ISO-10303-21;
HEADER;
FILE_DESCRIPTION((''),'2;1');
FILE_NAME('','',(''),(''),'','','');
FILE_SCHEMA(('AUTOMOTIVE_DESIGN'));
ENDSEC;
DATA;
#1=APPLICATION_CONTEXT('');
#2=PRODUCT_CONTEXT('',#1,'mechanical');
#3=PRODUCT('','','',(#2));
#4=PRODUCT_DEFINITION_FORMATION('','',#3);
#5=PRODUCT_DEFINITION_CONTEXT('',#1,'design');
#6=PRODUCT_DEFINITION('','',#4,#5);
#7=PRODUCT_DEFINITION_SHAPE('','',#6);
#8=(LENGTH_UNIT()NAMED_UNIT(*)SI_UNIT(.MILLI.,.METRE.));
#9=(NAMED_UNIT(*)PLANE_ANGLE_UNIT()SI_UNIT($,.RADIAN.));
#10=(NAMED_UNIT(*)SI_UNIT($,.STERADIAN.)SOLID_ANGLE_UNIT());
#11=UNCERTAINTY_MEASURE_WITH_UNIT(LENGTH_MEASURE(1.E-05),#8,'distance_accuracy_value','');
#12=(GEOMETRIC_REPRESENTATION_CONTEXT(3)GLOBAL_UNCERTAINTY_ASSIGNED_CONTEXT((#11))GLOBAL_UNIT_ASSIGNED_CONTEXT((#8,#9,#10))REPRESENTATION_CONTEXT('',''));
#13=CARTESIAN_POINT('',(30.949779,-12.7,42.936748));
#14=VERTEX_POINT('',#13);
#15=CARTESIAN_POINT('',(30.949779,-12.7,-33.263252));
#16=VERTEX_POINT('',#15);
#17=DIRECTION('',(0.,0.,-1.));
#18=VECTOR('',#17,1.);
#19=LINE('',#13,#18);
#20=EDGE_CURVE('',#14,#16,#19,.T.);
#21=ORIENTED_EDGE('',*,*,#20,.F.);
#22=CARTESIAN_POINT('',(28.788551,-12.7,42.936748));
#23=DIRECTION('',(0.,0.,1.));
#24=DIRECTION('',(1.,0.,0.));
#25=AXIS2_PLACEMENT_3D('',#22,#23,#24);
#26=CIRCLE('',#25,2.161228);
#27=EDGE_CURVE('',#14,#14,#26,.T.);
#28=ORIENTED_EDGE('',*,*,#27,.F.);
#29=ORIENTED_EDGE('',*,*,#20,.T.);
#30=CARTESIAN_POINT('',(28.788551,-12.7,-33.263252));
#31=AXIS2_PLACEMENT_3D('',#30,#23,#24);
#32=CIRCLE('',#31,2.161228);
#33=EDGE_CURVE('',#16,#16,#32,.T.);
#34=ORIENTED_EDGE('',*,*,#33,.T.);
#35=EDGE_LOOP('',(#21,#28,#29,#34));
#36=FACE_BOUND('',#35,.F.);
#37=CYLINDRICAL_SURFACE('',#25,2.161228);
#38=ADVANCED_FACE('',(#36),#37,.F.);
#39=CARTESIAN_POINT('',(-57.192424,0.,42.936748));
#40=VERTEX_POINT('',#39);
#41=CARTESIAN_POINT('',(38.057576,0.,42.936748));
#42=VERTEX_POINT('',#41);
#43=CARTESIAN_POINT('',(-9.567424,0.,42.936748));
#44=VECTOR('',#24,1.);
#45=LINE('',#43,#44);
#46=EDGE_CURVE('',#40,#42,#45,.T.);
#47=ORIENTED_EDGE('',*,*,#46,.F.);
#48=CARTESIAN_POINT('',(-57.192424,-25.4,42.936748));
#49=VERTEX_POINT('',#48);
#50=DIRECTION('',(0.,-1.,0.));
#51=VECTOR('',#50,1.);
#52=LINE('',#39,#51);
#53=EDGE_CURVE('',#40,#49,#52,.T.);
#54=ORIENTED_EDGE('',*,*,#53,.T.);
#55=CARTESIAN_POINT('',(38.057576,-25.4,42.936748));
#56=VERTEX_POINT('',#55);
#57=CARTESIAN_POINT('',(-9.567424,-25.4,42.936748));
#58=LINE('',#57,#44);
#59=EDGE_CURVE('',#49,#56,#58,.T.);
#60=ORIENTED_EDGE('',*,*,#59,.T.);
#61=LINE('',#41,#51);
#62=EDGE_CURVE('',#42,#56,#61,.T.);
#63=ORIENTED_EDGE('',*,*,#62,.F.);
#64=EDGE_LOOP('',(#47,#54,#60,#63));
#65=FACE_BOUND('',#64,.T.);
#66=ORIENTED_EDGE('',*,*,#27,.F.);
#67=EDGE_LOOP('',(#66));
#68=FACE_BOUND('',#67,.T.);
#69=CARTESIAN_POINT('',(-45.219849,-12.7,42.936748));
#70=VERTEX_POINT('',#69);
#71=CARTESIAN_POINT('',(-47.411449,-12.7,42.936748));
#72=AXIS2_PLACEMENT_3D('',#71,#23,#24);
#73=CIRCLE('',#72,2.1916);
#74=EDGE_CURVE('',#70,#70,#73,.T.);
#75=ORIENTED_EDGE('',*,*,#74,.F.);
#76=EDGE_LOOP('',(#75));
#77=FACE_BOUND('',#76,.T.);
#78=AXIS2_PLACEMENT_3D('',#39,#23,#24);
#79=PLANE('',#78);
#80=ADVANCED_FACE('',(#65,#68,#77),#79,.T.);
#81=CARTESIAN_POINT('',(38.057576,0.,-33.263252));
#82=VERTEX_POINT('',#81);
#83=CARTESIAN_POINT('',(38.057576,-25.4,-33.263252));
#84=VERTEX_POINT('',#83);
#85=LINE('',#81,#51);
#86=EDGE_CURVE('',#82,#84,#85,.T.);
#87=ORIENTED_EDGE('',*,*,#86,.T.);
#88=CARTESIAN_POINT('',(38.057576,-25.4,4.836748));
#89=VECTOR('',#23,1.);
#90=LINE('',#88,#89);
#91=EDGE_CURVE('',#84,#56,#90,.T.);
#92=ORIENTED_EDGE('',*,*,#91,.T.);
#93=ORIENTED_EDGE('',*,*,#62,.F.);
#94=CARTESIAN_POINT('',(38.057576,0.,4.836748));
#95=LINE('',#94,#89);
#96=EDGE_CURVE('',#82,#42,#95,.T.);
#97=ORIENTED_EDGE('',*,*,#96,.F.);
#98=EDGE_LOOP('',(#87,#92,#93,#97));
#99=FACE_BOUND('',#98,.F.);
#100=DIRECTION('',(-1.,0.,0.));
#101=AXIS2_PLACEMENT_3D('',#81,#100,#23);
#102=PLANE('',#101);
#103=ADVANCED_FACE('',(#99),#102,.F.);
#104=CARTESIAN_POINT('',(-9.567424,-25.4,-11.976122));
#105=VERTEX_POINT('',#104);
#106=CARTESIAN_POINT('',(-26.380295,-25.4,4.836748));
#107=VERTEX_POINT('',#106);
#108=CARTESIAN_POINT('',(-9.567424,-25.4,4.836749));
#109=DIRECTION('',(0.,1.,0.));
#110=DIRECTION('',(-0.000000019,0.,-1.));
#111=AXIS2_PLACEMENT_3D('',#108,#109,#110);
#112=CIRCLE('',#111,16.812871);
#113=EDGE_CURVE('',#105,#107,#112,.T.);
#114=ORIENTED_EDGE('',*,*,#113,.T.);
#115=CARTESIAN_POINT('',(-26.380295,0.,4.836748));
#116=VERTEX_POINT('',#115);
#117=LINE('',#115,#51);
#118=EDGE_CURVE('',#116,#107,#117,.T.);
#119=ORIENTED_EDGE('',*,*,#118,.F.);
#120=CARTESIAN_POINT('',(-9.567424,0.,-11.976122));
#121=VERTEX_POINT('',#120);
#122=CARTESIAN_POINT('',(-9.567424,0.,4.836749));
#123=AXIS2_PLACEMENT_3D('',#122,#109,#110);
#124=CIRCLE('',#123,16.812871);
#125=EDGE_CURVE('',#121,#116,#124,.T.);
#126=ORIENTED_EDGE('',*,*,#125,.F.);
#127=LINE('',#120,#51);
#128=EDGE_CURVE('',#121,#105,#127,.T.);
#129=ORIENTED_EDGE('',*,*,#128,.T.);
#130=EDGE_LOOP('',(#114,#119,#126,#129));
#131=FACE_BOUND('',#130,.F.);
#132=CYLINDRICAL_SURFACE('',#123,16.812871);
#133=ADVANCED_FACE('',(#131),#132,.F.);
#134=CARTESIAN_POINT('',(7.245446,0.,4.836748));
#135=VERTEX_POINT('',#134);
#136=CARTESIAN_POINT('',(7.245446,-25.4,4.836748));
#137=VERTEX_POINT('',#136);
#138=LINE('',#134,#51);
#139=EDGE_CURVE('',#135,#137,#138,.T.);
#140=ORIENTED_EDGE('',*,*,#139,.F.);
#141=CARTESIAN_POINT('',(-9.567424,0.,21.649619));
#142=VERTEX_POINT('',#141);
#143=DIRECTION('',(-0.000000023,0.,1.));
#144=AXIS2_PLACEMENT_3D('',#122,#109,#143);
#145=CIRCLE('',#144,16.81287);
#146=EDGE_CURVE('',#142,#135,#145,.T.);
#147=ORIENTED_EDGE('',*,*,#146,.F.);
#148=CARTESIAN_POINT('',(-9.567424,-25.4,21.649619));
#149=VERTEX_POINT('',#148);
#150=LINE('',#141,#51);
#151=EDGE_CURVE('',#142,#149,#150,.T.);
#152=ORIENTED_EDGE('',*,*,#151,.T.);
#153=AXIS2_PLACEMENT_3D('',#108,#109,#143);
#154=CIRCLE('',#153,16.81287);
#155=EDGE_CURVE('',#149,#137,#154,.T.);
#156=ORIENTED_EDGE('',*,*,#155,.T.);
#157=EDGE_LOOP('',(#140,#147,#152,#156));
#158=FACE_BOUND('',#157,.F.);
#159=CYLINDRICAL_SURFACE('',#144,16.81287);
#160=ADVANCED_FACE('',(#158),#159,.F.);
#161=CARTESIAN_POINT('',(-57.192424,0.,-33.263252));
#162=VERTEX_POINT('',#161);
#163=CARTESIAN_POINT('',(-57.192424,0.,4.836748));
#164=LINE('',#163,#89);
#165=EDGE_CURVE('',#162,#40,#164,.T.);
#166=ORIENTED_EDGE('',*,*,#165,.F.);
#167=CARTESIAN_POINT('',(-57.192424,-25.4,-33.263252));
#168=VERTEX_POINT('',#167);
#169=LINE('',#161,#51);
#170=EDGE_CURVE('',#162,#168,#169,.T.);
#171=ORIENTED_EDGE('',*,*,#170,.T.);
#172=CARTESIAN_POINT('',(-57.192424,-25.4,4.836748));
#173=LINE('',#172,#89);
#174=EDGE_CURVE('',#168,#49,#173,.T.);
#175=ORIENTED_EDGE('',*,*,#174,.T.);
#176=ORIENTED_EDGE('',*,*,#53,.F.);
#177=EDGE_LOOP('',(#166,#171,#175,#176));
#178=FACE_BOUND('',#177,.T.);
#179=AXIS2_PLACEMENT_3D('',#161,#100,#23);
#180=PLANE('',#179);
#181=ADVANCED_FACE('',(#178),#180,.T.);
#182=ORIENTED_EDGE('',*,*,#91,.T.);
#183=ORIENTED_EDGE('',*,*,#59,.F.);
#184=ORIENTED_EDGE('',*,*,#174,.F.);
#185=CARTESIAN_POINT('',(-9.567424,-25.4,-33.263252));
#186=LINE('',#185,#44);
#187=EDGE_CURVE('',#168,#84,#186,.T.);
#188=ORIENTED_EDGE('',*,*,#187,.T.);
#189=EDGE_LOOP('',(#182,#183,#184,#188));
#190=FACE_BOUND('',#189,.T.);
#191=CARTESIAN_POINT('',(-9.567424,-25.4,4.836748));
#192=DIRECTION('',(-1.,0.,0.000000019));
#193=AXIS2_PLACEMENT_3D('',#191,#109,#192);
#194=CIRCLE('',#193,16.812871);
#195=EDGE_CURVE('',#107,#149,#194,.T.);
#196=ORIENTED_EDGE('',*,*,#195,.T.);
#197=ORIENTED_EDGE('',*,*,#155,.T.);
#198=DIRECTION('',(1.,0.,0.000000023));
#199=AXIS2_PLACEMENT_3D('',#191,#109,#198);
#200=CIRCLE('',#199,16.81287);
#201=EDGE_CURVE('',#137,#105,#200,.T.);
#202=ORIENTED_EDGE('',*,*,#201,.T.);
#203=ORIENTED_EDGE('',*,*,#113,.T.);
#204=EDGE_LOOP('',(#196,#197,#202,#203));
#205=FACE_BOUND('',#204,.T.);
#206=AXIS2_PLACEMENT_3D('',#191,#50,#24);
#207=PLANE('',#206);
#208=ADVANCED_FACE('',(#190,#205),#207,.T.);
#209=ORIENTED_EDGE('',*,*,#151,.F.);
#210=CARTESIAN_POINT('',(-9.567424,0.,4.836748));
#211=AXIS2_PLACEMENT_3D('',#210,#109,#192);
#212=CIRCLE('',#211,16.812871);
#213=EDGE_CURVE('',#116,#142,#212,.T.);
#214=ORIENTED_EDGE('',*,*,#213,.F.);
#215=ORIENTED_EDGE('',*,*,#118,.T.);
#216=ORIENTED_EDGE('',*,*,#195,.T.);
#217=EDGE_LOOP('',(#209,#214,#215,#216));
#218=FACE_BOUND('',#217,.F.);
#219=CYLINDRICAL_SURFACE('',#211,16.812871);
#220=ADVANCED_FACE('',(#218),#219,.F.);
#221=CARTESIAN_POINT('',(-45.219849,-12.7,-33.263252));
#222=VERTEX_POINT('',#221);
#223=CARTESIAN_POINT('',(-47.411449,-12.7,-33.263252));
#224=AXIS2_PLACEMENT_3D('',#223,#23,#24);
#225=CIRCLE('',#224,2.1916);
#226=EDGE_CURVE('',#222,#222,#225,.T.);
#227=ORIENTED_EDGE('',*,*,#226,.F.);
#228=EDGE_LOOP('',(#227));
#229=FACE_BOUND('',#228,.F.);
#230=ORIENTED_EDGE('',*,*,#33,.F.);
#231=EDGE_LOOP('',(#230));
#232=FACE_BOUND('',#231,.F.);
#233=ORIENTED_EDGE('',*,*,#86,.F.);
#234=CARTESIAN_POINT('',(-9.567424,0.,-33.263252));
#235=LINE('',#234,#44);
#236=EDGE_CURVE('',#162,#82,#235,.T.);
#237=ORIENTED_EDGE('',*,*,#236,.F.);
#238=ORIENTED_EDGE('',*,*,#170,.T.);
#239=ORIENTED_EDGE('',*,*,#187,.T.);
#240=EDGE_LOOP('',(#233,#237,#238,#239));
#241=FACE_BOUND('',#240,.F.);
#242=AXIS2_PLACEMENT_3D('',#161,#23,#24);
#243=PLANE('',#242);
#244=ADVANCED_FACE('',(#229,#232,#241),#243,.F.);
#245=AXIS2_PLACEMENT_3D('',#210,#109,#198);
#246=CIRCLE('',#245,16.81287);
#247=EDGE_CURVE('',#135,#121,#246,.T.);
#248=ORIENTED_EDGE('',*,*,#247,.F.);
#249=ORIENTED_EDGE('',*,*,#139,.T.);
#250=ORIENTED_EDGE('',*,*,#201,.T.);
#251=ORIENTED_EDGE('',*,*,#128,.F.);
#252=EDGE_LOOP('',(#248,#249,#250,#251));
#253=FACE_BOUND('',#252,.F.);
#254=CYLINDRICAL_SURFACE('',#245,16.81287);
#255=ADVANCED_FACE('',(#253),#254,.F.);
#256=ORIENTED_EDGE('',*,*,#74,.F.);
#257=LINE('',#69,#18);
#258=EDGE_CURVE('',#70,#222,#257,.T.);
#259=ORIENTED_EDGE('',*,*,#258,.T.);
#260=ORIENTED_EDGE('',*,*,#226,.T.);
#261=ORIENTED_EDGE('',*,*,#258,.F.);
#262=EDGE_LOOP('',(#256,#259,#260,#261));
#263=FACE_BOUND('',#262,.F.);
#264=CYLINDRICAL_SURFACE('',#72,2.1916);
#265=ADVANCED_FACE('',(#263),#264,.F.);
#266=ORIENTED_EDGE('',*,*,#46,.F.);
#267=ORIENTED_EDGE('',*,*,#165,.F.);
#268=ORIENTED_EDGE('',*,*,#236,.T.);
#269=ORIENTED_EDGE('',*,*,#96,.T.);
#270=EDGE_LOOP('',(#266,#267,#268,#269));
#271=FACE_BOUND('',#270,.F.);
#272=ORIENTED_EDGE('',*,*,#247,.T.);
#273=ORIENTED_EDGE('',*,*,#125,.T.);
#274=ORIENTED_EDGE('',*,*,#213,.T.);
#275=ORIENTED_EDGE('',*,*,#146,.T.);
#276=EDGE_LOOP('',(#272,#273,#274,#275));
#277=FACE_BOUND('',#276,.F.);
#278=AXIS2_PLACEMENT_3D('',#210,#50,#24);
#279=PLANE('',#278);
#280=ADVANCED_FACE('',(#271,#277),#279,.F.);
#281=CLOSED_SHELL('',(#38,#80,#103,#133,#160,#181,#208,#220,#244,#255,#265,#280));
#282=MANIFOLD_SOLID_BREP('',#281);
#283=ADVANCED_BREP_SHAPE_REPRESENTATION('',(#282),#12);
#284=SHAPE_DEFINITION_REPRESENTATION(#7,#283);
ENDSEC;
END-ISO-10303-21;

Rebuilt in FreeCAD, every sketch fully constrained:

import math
import FreeCAD as App
import Part
import Sketcher
from FreeCAD import Vector
Q = App.Units.Quantity

doc = App.newDocument("Part")
body = doc.addObject("PartDesign::Body", "Body")

# Sketch on XZ plane
sketch1 = body.newObject("Sketcher::SketchObject", "Sketch")
sketch1.AttachmentSupport = (doc.getObject("XZ_Plane"), [""])
sketch1.MapMode = "FlatFace"
sketch1.addGeometry(Part.LineSegment(Vector(-57, 43, 0), Vector(-57, -33, 0)), False)
sketch1.addGeometry(Part.LineSegment(Vector(-57, -33, 0), Vector(38, -33, 0)), False)
sketch1.addGeometry(Part.LineSegment(Vector(38, -33, 0), Vector(38, 43, 0)), False)
sketch1.addGeometry(Part.LineSegment(Vector(38, 43, 0), Vector(-57, 43, 0)), False)
sketch1.addConstraint(Sketcher.Constraint("Coincident", 0, 2, 1, 1))
sketch1.addConstraint(Sketcher.Constraint("Coincident", 1, 2, 2, 1))
sketch1.addConstraint(Sketcher.Constraint("Coincident", 2, 2, 3, 1))
sketch1.addConstraint(Sketcher.Constraint("Coincident", 3, 2, 0, 1))
sketch1.addConstraint(Sketcher.Constraint("Vertical", 0))
sketch1.addConstraint(Sketcher.Constraint("Horizontal", 1))
sketch1.addConstraint(Sketcher.Constraint("Vertical", 2))
sketch1.addConstraint(Sketcher.Constraint("Horizontal", 3))
sketch1.addConstraint(Sketcher.Constraint("DistanceY", 0, 2, 0, 1, Q("3 in")))
sketch1.addConstraint(Sketcher.Constraint("DistanceX", 1, 1, 1, 2, Q("3.75 in")))
sketch1.addConstraint(Sketcher.Constraint("DistanceX", 0, 2, -1, 1, Q("57.192424 mm")))
sketch1.addConstraint(Sketcher.Constraint("DistanceY", 0, 2, -1, 1, Q("33.263252 mm")))
pad1 = body.newObject("PartDesign::Pad", "Pad")
pad1.Profile = sketch1
pad1.Length = Q("1 in")

# Sketch on XZ plane
sketch2 = body.newObject("Sketcher::SketchObject", "Sketch001")
sketch2.AttachmentSupport = (doc.getObject("XZ_Plane"), [""])
sketch2.MapMode = "FlatFace"
sketch2.addGeometry(Part.ArcOfCircle(Part.Circle(Vector(-10, 5, 0), Vector(0, 0, 1), 17), math.radians(90), math.radians(180)), False)
sketch2.addGeometry(Part.ArcOfCircle(Part.Circle(Vector(-10, 5, 0), Vector(0, 0, 1), 17), math.radians(0), math.radians(90)), False)
sketch2.addGeometry(Part.ArcOfCircle(Part.Circle(Vector(-10, 5, 0), Vector(0, 0, 1), 17), math.radians(-90), math.radians(0)), False)
sketch2.addGeometry(Part.ArcOfCircle(Part.Circle(Vector(-10, 5, 0), Vector(0, 0, 1), 17), math.radians(-180), math.radians(-90)), False)
sketch2.addConstraint(Sketcher.Constraint("Tangent", 0, 1, 1, 2))
sketch2.addConstraint(Sketcher.Constraint("Tangent", 1, 1, 2, 2))
sketch2.addConstraint(Sketcher.Constraint("Tangent", 2, 1, 3, 2))
sketch2.addConstraint(Sketcher.Constraint("Tangent", 3, 1, 0, 2))
sketch2.addConstraint(Sketcher.Constraint("Equal", 0, 1))
sketch2.addConstraint(Sketcher.Constraint("Horizontal", 3, 3, 1, 1))
sketch2.addConstraint(Sketcher.Constraint("Horizontal", 1, 1, 3, 1))
sketch2.addConstraint(Sketcher.Constraint("Vertical", 3, 3, 0, 1))
sketch2.addConstraint(Sketcher.Constraint("Vertical", 0, 1, 2, 1))
sketch2.addConstraint(Sketcher.Constraint("Radius", 0, Q("16.812871 mm")))
sketch2.addConstraint(Sketcher.Constraint("DistanceY", -1, 1, 1, 3, Q("4.836749 mm")))
sketch2.addConstraint(Sketcher.Constraint("DistanceX", 0, 3, -1, 1, Q("9.567424 mm")))
pocket1 = body.newObject("PartDesign::Pocket", "Pocket")
pocket1.Profile = sketch2
pocket1.Type = "ThroughAll"
pocket1.Reversed = True

# Sketch on XY plane
sketch3 = body.newObject("Sketcher::SketchObject", "Sketch002")
sketch3.AttachmentSupport = (doc.getObject("XY_Plane"), [""])
sketch3.MapMode = "FlatFace"
sketch3.AttachmentOffset = App.Placement(Vector(0, 0, 42.936748), App.Rotation())
sketch3.addGeometry(Part.Circle(Vector(28.8, -12.7, 0), Vector(0, 0, 1), 2.2), False)
sketch3.addGeometry(Part.Circle(Vector(-47.4, -12.7, 0), Vector(0, 0, 1), 2.2), False)
sketch3.addConstraint(Sketcher.Constraint("Horizontal", 0, 3, 1, 3))
sketch3.addConstraint(Sketcher.Constraint("DistanceX", 1, 3, 0, 3, Q("3 in")))
sketch3.addConstraint(Sketcher.Constraint("DistanceY", 0, 3, -1, 1, Q("0.5 in")))
sketch3.addConstraint(Sketcher.Constraint("Diameter", 1, Q("4.3832 mm")))
sketch3.addConstraint(Sketcher.Constraint("Diameter", 0, Q("4.322456 mm")))
sketch3.addConstraint(Sketcher.Constraint("DistanceX", -1, 1, 0, 3, Q("28.788551 mm")))
pocket2 = body.newObject("PartDesign::Pocket", "Pocket001")
pocket2.Profile = sketch3
pocket2.Type = "ThroughAll"

doc.recompute()
